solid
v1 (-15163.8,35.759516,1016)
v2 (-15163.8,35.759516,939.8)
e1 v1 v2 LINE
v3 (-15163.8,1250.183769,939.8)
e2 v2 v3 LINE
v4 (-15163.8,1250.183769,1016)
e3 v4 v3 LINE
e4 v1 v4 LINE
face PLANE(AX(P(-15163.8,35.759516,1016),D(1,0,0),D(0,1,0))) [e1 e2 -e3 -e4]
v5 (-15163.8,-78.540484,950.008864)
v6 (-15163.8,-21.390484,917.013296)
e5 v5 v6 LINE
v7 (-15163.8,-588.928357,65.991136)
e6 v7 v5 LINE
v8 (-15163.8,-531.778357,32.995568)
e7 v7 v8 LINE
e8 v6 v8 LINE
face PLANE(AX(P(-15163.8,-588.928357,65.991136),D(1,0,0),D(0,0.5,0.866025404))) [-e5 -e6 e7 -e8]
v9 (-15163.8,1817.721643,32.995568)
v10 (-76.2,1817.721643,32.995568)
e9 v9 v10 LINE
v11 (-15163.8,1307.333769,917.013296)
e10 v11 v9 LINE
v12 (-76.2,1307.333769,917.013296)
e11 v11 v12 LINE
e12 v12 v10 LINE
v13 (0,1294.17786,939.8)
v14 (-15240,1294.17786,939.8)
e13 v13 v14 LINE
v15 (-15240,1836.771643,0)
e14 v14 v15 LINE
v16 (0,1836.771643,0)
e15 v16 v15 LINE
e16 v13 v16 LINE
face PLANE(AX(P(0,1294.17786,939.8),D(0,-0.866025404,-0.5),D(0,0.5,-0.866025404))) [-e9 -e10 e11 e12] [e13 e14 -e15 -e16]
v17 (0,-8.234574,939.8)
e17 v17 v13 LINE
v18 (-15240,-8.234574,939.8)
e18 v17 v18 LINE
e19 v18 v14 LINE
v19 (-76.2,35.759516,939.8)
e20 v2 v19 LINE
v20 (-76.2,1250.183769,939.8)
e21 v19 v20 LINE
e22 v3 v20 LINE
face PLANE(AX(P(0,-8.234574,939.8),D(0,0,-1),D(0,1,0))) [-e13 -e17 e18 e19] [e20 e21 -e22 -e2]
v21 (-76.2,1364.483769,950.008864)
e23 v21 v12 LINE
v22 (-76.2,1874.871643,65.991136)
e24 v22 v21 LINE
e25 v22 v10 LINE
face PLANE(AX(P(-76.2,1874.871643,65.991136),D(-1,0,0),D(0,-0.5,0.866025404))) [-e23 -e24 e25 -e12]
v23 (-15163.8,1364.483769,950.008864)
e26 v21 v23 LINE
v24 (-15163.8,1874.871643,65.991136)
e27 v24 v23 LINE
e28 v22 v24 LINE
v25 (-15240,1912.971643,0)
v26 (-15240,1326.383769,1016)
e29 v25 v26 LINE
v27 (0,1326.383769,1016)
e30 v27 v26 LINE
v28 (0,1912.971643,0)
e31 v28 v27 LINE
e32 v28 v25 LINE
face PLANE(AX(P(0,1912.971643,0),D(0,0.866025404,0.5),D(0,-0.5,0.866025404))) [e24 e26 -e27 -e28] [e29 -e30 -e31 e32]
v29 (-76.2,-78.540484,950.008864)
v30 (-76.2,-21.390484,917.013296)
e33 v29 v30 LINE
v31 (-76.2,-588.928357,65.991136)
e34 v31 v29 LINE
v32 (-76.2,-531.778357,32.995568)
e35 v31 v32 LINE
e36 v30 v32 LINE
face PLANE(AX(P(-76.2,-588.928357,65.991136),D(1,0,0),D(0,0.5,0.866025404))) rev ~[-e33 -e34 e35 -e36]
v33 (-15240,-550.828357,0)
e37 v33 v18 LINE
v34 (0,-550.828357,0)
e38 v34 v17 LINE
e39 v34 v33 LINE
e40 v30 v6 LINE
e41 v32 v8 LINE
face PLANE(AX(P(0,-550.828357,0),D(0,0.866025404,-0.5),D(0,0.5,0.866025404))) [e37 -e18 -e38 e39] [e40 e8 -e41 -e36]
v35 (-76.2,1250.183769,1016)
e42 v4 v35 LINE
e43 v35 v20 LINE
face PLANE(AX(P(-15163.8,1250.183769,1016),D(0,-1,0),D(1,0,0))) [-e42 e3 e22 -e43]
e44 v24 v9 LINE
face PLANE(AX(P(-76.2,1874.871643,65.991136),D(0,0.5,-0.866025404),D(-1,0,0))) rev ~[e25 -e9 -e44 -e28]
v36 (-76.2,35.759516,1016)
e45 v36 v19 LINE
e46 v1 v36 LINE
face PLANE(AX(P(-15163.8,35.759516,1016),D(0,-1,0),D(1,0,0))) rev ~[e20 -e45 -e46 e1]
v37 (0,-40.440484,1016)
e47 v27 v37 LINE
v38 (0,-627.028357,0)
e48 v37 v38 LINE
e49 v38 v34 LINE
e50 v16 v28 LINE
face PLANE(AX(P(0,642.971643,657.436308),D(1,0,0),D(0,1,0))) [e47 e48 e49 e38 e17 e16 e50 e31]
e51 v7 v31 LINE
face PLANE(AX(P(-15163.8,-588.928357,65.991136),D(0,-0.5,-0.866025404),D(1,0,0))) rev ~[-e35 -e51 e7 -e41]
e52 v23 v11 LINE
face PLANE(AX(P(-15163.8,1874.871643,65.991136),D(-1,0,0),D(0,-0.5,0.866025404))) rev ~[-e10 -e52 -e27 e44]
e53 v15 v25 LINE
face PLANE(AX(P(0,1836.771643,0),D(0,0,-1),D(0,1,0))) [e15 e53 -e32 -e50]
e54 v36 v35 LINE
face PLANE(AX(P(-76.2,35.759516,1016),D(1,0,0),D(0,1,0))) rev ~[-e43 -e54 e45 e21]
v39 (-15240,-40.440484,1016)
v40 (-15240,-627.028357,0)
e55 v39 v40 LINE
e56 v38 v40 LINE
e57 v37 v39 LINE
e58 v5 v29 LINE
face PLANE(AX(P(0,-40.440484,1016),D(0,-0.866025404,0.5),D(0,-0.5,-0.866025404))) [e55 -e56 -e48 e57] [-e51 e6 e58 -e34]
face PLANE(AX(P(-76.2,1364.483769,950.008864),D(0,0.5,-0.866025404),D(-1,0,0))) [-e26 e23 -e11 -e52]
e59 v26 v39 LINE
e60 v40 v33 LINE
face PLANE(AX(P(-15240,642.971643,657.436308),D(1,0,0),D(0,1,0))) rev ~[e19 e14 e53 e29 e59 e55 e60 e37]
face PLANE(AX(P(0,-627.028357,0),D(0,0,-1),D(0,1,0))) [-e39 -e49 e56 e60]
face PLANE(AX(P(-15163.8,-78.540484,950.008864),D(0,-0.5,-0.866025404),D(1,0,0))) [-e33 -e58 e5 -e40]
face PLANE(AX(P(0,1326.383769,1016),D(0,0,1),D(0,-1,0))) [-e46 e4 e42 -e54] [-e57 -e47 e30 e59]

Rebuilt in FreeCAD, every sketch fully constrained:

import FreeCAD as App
import Part
import Sketcher

V = App.Vector
Q = App.Units.Quantity


def add_polygon(sketch, points):
    """Adds a closed chain of lines whose ends are joined by coincident constraints."""
    first, n = sketch.GeometryCount, len(points)
    for a, b in zip(points, points[1:] + points[:1]):
        sketch.addGeometry(Part.LineSegment(App.Vector(*a, 0), App.Vector(*b, 0)), False)
    for i in range(n):
        sketch.addConstraint(Sketcher.Constraint("Coincident", first + i, 2, first + (i + 1) % n, 1))

doc = App.newDocument("Part")
body = doc.addObject("PartDesign::Body", "Body")

# Sketch on YZ plane
sketch1 = doc.addObject("Sketcher::SketchObject", "Sketch")
body.addObject(sketch1)
sketch1.AttachmentSupport = (doc.YZ_Plane, [""])
sketch1.MapMode = "FlatFace"
add_polygon(sketch1, [(-40, 1016), (-627, 0), (-551, 0), (-8, 940), (1294, 940), (1837, 0), (1913, 0), (1326, 1016)])  # lines 0-7
sketch1.addConstraint([
    Sketcher.Constraint("Horizontal", 1),
    Sketcher.Constraint("Horizontal", 3),
    Sketcher.Constraint("Horizontal", 5),
    Sketcher.Constraint("Horizontal", 7),
    Sketcher.Constraint("PointOnObject", 0, 2, -1),
    Sketcher.Constraint("PointOnObject", 4, 2, -1),
    Sketcher.Constraint("Parallel", 0, 2),
    Sketcher.Constraint("Parallel", 4, 6),
    Sketcher.Constraint("Equal", 1, 5),
    Sketcher.Constraint("Equal", 2, 4),
    Sketcher.Constraint("DistanceX", 1, 1, 1, 2, Q("3 in")),
    Sketcher.Constraint("DistanceY", -1, 1, 2, 2, Q("37 in")),
    Sketcher.Constraint("DistanceY", -1, 1, 6, 2, Q("40 in")),
    Sketcher.Constraint("Angle", 0, Q("-120 deg")),
    Sketcher.Constraint("DistanceX", 1, 2, 4, 2, Q("94 in")),
    Sketcher.Constraint("DistanceX", -1, 1, 3, 2, 1294.17786),
])
pad1 = doc.addObject("PartDesign::Pad", "Pad")
body.addObject(pad1)
pad1.Profile = sketch1
pad1.Length = Q("600 in")
pad1.Reversed = True

# Sketch on an angled plane
sketch2 = doc.addObject("Sketcher::SketchObject", "Sketch001")
body.addObject(sketch2)
sketch2.Placement = App.Placement(V(0, -470.271268, 271.511243), App.Rotation(V(1, 0, 0), V(0, 0.5, 0.866025404), V(0, -0.866025404, 0.5), "ZXY"))
add_polygon(sketch2, [(-15164, 783), (-15164, -237), (-76, -237), (-76, 783)])  # lines 0-3
sketch2.addConstraint([
    Sketcher.Constraint("Vertical", 0),
    Sketcher.Constraint("Horizontal", 1),
    Sketcher.Constraint("Vertical", 2),
    Sketcher.Constraint("Horizontal", 3),
    Sketcher.Constraint("DistanceX", 1, 1, 1, 2, Q("594 in")),
    Sketcher.Constraint("DistanceX", 0, 2, -1, 1, Q("597 in")),
    Sketcher.Constraint("DistanceY", 0, 2, 0, 1, 1020.775747),
    Sketcher.Constraint("DistanceY", 0, 2, -1, 1, 237.314179),
])
pocket1 = doc.addObject("PartDesign::Pocket", "Pocket")
body.addObject(pocket1)
pocket1.Profile = sketch2
pocket1.Length = Q("3 in")

# Sketch on XY plane
sketch3 = doc.addObject("Sketcher::SketchObject", "Sketch002")
body.addObject(sketch3)
sketch3.AttachmentSupport = (doc.XY_Plane, [""])
sketch3.MapMode = "FlatFace"
sketch3.AttachmentOffset = App.Placement(V(0, 0, 40 * 25.4), App.Rotation())
add_polygon(sketch3, [(-15164, 1250), (-15164, 36), (-76, 36), (-76, 1250)])  # lines 0-3
sketch3.addConstraint([
    Sketcher.Constraint("Vertical", 0),
    Sketcher.Constraint("Horizontal", 1),
    Sketcher.Constraint("Vertical", 2),
    Sketcher.Constraint("Horizontal", 3),
    Sketcher.Constraint("DistanceX", 1, 1, 1, 2, Q("594 in")),
    Sketcher.Constraint("DistanceX", 0, 2, -1, 1, Q("597 in")),
    Sketcher.Constraint("DistanceY", 0, 2, 0, 1, 1214.424253),
    Sketcher.Constraint("DistanceY", -1, 1, 2, 2, 1250.183769),
])
pocket2 = doc.addObject("PartDesign::Pocket", "Pocket001")
body.addObject(pocket2)
pocket2.Profile = sketch3
pocket2.Length = Q("3 in")

# Sketch on an angled plane
sketch4 = doc.addObject("Sketcher::SketchObject", "Sketch003")
body.addObject(sketch4)
sketch4.Placement = App.Placement(V(0, 1434.728732, 828.34102), App.Rotation(V(-1, 0, 0), V(0, -0.5, 0.866025404), V(0, 0.866025404, 0.5), "ZXY"))
add_polygon(sketch4, [(76, 140), (76, -880), (15164, -880), (15164, 140)])  # lines 0-3
sketch4.addConstraint([
    Sketcher.Constraint("Vertical", 0),
    Sketcher.Constraint("Horizontal", 1),
    Sketcher.Constraint("Vertical", 2),
    Sketcher.Constraint("Horizontal", 3),
    Sketcher.Constraint("DistanceX", 1, 1, 1, 2, Q("594 in")),
    Sketcher.Constraint("DistanceX", -1, 1, 0, 2, Q("3 in")),
    Sketcher.Constraint("DistanceY", 0, 2, 0, 1, 1020.775747),
    Sketcher.Constraint("DistanceY", 0, 2, -1, 1, 880.285822),
])
pocket3 = doc.addObject("PartDesign::Pocket", "Pocket002")
body.addObject(pocket3)
pocket3.Profile = sketch4
pocket3.Length = Q("3 in")

doc.recompute()
